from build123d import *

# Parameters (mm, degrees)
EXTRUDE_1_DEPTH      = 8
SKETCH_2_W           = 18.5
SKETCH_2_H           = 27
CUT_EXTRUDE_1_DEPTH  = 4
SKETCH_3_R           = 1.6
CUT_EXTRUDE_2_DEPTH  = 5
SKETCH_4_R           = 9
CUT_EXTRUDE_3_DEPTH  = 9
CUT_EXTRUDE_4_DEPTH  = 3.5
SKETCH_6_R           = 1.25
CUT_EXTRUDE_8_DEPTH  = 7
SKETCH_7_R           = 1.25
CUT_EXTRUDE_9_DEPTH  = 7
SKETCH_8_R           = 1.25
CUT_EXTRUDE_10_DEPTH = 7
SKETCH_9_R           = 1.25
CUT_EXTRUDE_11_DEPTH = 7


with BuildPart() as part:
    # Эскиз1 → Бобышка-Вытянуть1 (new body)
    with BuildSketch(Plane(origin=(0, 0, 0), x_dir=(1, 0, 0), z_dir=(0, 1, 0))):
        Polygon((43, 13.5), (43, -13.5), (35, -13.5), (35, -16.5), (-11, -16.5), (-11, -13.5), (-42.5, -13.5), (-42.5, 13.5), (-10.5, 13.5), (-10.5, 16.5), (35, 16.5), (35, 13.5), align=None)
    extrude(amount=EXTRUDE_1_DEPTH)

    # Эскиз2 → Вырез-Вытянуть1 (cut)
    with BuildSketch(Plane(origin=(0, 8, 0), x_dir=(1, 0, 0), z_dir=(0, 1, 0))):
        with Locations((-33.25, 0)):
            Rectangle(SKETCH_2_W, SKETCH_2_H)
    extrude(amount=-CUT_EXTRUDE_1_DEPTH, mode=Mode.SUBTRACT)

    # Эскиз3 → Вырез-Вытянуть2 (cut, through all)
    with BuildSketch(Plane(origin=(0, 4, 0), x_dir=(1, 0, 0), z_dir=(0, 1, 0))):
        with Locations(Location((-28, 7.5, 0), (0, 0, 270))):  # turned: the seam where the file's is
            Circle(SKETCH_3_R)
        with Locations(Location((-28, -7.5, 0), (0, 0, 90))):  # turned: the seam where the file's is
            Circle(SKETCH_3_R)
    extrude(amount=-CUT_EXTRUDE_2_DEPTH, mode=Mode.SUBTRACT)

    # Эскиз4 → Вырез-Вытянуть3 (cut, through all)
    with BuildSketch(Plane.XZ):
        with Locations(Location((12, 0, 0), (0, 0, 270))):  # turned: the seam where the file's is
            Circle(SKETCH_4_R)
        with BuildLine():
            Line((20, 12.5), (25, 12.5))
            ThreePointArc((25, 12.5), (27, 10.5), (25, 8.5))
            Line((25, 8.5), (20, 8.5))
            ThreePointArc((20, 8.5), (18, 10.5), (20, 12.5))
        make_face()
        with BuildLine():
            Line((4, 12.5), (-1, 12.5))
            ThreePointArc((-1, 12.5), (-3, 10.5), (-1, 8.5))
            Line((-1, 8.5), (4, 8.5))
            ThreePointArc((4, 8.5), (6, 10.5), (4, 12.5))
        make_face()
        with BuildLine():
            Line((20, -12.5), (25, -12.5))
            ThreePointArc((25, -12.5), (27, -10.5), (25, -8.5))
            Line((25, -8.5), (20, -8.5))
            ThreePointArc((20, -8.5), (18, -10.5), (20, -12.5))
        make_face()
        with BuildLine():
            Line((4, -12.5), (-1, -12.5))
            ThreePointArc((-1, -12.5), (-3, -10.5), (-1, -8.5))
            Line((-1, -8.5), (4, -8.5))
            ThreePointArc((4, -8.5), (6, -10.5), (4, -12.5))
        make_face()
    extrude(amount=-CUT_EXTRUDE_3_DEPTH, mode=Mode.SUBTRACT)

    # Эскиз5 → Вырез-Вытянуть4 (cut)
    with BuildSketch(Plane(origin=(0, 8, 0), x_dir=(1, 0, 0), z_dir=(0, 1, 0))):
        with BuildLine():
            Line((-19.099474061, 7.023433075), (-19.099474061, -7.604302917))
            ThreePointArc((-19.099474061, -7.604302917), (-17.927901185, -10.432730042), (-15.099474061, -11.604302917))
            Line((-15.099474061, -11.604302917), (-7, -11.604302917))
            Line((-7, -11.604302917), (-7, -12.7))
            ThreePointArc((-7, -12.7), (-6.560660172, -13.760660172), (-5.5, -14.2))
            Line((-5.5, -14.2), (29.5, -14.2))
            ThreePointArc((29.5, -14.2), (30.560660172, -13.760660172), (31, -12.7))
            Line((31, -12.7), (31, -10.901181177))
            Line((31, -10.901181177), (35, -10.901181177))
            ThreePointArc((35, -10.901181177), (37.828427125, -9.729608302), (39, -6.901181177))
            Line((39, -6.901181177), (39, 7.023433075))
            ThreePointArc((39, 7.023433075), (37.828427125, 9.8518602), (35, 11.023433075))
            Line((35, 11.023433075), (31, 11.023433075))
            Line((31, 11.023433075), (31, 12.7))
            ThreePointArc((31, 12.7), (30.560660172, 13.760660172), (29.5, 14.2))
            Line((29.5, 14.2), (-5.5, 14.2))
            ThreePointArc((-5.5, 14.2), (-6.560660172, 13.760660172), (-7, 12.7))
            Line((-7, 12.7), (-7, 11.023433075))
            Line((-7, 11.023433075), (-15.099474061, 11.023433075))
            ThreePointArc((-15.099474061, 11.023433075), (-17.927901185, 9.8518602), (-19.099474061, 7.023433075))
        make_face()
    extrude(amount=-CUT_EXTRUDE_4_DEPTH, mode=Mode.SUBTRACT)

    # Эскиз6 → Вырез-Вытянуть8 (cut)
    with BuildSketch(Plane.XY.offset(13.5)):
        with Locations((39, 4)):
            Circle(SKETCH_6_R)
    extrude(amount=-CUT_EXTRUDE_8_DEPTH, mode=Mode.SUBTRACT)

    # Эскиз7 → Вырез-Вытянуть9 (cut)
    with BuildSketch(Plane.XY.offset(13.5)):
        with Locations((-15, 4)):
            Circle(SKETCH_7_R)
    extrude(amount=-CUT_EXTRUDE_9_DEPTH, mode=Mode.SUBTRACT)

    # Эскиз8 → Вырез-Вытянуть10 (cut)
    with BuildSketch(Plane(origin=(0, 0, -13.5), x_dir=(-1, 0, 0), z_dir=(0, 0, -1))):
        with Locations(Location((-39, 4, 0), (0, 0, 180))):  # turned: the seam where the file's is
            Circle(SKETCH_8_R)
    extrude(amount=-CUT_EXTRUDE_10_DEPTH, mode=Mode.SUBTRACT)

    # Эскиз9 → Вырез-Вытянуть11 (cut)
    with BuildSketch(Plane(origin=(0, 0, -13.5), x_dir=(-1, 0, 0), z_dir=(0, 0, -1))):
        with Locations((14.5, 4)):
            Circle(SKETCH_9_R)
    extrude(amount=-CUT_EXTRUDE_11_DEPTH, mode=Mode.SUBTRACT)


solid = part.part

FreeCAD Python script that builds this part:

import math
import FreeCAD as App
import Part
import Sketcher
Q = App.Units.Quantity


def add_polygon(sketch, points):
    """Adds a closed chain of lines whose ends are joined by coincident constraints."""
    first, n = sketch.GeometryCount, len(points)
    for a, b in zip(points, points[1:] + points[:1]):
        sketch.addGeometry(Part.LineSegment(App.Vector(*a, 0), App.Vector(*b, 0)), False)
    for i in range(n):
        sketch.addConstraint(Sketcher.Constraint("Coincident", first + i, 2, first + (i + 1) % n, 1))

doc = App.newDocument("Part")
body = doc.addObject("PartDesign::Body", "Body")

# Sketch on XZ plane
sketch1 = doc.addObject("Sketcher::SketchObject", "Sketch")
body.addObject(sketch1)
sketch1.AttachmentSupport = (doc.XZ_Plane, [""])
sketch1.MapMode = "FlatFace"
add_polygon(sketch1, [(43, 13.5), (43, -13.5), (35, -13.5), (35, -16.5), (-10.5, -16.5), (-10.5, -13.5), (-42.5, -13.5), (-42.5, 13.5), (-11, 13.5), (-11, 16.5), (35, 16.5), (35, 13.5)])  # lines 0-11
sketch1.addConstraint([
    Sketcher.Constraint("Vertical", 0),
    Sketcher.Constraint("Horizontal", 1),
    Sketcher.Constraint("Vertical", 2),
    Sketcher.Constraint("Horizontal", 3),
    Sketcher.Constraint("Vertical", 4),
    Sketcher.Constraint("Horizontal", 5),
    Sketcher.Constraint("Vertical", 6),
    Sketcher.Constraint("Horizontal", 7),
    Sketcher.Constraint("Vertical", 8),
    Sketcher.Constraint("Horizontal", 9),
    Sketcher.Constraint("Vertical", 10),
    Sketcher.Constraint("Horizontal", 11),
    Sketcher.Constraint("Symmetric", 2, 2, 9, 2, -1),
    Sketcher.Constraint("Horizontal", 1, 2, 4, 2),
    Sketcher.Constraint("Horizontal", 7, 2, 10, 2),
    Sketcher.Constraint("Equal", 4, 8),
    Sketcher.Constraint("DistanceX", 1, 2, 1, 1, Q("8 mm")),
    Sketcher.Constraint("DistanceX", 5, 2, 5, 1, Q("32 mm")),
    Sketcher.Constraint("DistanceX", 9, 1, 9, 2, Q("46 mm")),
    Sketcher.Constraint("DistanceY", 0, 2, 0, 1, Q("27 mm")),
    Sketcher.Constraint("DistanceY", 2, 2, 2, 1, Q("3 mm")),
    Sketcher.Constraint("DistanceX", 3, 2, 3, 1, Q("45.5 mm")),
    Sketcher.Constraint("DistanceX", -1, 1, 0, 2, Q("43 mm")),
])
pad1 = doc.addObject("PartDesign::Pad", "Pad")
body.addObject(pad1)
pad1.Profile = sketch1
pad1.Length = 8
pad1.Reversed = True

# Sketch on XZ plane
sketch2 = doc.addObject("Sketcher::SketchObject", "Sketch001")
body.addObject(sketch2)
sketch2.AttachmentSupport = (doc.XZ_Plane, [""])
sketch2.MapMode = "FlatFace"
sketch2.AttachmentOffset = App.Placement(App.Vector(0, 0, -8), App.Rotation())
add_polygon(sketch2, [(-42.5, -13.5), (-42.5, 13.5), (-24, 13.5), (-24, -13.5)])  # lines 0-3
sketch2.addConstraint([
    Sketcher.Constraint("Vertical", 0),
    Sketcher.Constraint("Horizontal", 1),
    Sketcher.Constraint("Vertical", 2),
    Sketcher.Constraint("Horizontal", 3),
    Sketcher.Constraint("DistanceY", 0, 1, 0, 2, Q("27 mm")),
    Sketcher.Constraint("DistanceX", 1, 1, 1, 2, Q("18.5 mm")),
    Sketcher.Constraint("DistanceX", 1, 2, -1, 1, Q("24 mm")),
    Sketcher.Constraint("DistanceY", -1, 1, 0, 2, Q("13.5 mm")),
])
pocket1 = doc.addObject("PartDesign::Pocket", "Pocket")
body.addObject(pocket1)
pocket1.Profile = sketch2
pocket1.Length = 4
pocket1.Reversed = True

# Sketch on XZ plane
sketch3 = doc.addObject("Sketcher::SketchObject", "Sketch002")
body.addObject(sketch3)
sketch3.AttachmentSupport = (doc.XZ_Plane, [""])
sketch3.MapMode = "FlatFace"
sketch3.AttachmentOffset = App.Placement(App.Vector(0, 0, -4), App.Rotation())
sketch3.addGeometry([
    Part.Circle(App.Vector(-28, -7.5, 0), App.Vector(0, 0, 1), 1.6),
    Part.Circle(App.Vector(-28, 7.5, 0), App.Vector(0, 0, 1), 1.6),
], False)
sketch3.addConstraint([
    Sketcher.Constraint("Equal", 0, 1),
    Sketcher.Constraint("Symmetric", 0, 3, 1, 3, -1),
    Sketcher.Constraint("Diameter", 0, Q("3.2 mm")),
    Sketcher.Constraint("DistanceX", 0, 3, -1, 1, Q("28 mm")),
    Sketcher.Constraint("DistanceY", 0, 3, 1, 3, Q("15 mm")),
])
pocket2 = doc.addObject("PartDesign::Pocket", "Pocket001")
body.addObject(pocket2)
pocket2.Profile = sketch3
pocket2.Type = "ThroughAll"
pocket2.Reversed = True

# Sketch on XZ plane
sketch4 = doc.addObject("Sketcher::SketchObject", "Sketch003")
body.addObject(sketch4)
sketch4.AttachmentSupport = (doc.XZ_Plane, [""])
sketch4.MapMode = "FlatFace"
sketch4.addGeometry([
    Part.Circle(App.Vector(12, 0, 0), App.Vector(0, 0, 1), 9),  # 0
    Part.LineSegment(App.Vector(25, 12.5, 0), App.Vector(20, 12.5, 0)),  # 1
    Part.ArcOfCircle(Part.Circle(App.Vector(20, 10.5, 0), App.Vector(0, 0, 1), 2), math.radians(90), math.radians(270)),  # 2
    Part.LineSegment(App.Vector(20, 8.5, 0), App.Vector(25, 8.5, 0)),  # 3
    Part.ArcOfCircle(Part.Circle(App.Vector(25, 10.5, 0), App.Vector(0, 0, 1), 2), math.radians(-90), math.radians(90)),  # 4
    Part.LineSegment(App.Vector(4, 12.5, 0), App.Vector(-1, 12.5, 0)),  # 5
    Part.ArcOfCircle(Part.Circle(App.Vector(-1, 10.5, 0), App.Vector(0, 0, 1), 2), math.radians(90), math.radians(270)),  # 6
    Part.LineSegment(App.Vector(-1, 8.5, 0), App.Vector(4, 8.5, 0)),  # 7
    Part.ArcOfCircle(Part.Circle(App.Vector(4, 10.5, 0), App.Vector(0, 0, 1), 2), math.radians(-90), math.radians(90)),  # 8
    Part.LineSegment(App.Vector(20, -12.5, 0), App.Vector(25, -12.5, 0)),  # 9
    Part.ArcOfCircle(Part.Circle(App.Vector(25, -10.5, 0), App.Vector(0, 0, 1), 2), math.radians(-90), math.radians(90)),  # 10
    Part.LineSegment(App.Vector(25, -8.5, 0), App.Vector(20, -8.5, 0)),  # 11
    Part.ArcOfCircle(Part.Circle(App.Vector(20, -10.5, 0), App.Vector(0, 0, 1), 2), math.radians(90), math.radians(270)),  # 12
    Part.LineSegment(App.Vector(-1, -12.5, 0), App.Vector(4, -12.5, 0)),  # 13
    Part.ArcOfCircle(Part.Circle(App.Vector(4, -10.5, 0), App.Vector(0, 0, 1), 2), math.radians(-90), math.radians(90)),  # 14
    Part.LineSegment(App.Vector(4, -8.5, 0), App.Vector(-1, -8.5, 0)),  # 15
    Part.ArcOfCircle(Part.Circle(App.Vector(-1, -10.5, 0), App.Vector(0, 0, 1), 2), math.radians(90), math.radians(270)),  # 16
], False)
sketch4.addConstraint([
    Sketcher.Constraint("Tangent", 1, 2, 2, 1),
    Sketcher.Constraint("Tangent", 2, 2, 3, 1),
    Sketcher.Constraint("Tangent", 3, 2, 4, 1),
    Sketcher.Constraint("Tangent", 4, 2, 1, 1),
    Sketcher.Constraint("Tangent", 5, 2, 6, 1),
    Sketcher.Constraint("Tangent", 6, 2, 7, 1),
    Sketcher.Constraint("Tangent", 7, 2, 8, 1),
    Sketcher.Constraint("Tangent", 8, 2, 5, 1),
    Sketcher.Constraint("Tangent", 9, 2, 10, 1),
    Sketcher.Constraint("Tangent", 10, 2, 11, 1),
    Sketcher.Constraint("Tangent", 11, 2, 12, 1),
    Sketcher.Constraint("Tangent", 12, 2, 9, 1),
    Sketcher.Constraint("Tangent", 13, 2, 14, 1),
    Sketcher.Constraint("Tangent", 14, 2, 15, 1),
    Sketcher.Constraint("Tangent", 15, 2, 16, 1),
    Sketcher.Constraint("Tangent", 16, 2, 13, 1),
    Sketcher.Constraint("Horizontal", 1),
    Sketcher.Constraint("Horizontal", 3),
    Sketcher.Constraint("Horizontal", 5),
    Sketcher.Constraint("Horizontal", 7),
    Sketcher.Constraint("Horizontal", 9),
    Sketcher.Constraint("Horizontal", 11),
    Sketcher.Constraint("Horizontal", 13),
    Sketcher.Constraint("Horizontal", 15),
    Sketcher.Constraint("Equal", 4, 6),
    Sketcher.Constraint("Equal", 8, 10),
    Sketcher.Constraint("Equal", 12, 14),
    Sketcher.Constraint("Symmetric", 4, 3, 10, 3, -1),
    Sketcher.Constraint("Symmetric", 8, 3, 14, 3, -1),
    Sketcher.Constraint("PointOnObject", 0, 3, -1),
    Sketcher.Constraint("Horizontal", 4, 3, 6, 3),
    Sketcher.Constraint("Vertical", 2, 3, 12, 3),
    Sketcher.Constraint("Vertical", 6, 3, 16, 3),
    Sketcher.Constraint("Equal", 3, 5),
    Sketcher.Constraint("Diameter", 0, Q("18 mm")),
    Sketcher.Constraint("Radius", 2, Q("2 mm")),
    Sketcher.Constraint("DistanceX", 1, 2, 1, 1, Q("5 mm")),
    Sketcher.Constraint("DistanceX", -1, 1, 0, 3, Q("12 mm")),
    Sketcher.Constraint("DistanceX", -1, 1, 2, 3, Q("20 mm")),
    Sketcher.Constraint("DistanceX", 6, 3, -1, 1, Q("1 mm")),
    Sketcher.Constraint("DistanceY", 10, 3, 4, 3, Q("21 mm")),
])
pocket3 = doc.addObject("PartDesign::Pocket", "Pocket002")
body.addObject(pocket3)
pocket3.Profile = sketch4
pocket3.Type = "ThroughAll"

# Sketch on XZ plane
sketch5 = doc.addObject("Sketcher::SketchObject", "Sketch004")
body.addObject(sketch5)
sketch5.AttachmentSupport = (doc.XZ_Plane, [""])
sketch5.MapMode = "FlatFace"
sketch5.AttachmentOffset = App.Placement(App.Vector(0, 0, -8), App.Rotation())
sketch5.addGeometry([
    Part.LineSegment(App.Vector(-19.099474, -7.023433, 0), App.Vector(-19.099474, 7.604303, 0)),  # 0
    Part.ArcOfCircle(Part.Circle(App.Vector(-15.099474, 7.604303, 0), App.Vector(0, 0, 1), 4), math.radians(90), math.radians(180)),  # 1
    Part.LineSegment(App.Vector(-15.099474, 11.604303, 0), App.Vector(-7, 11.604303, 0)),  # 2
    Part.LineSegment(App.Vector(-7, 11.604303, 0), App.Vector(-7, 12.7, 0)),  # 3
    Part.ArcOfCircle(Part.Circle(App.Vector(-5.5, 12.7, 0), App.Vector(0, 0, 1), 1.5), math.radians(90), math.radians(180)),  # 4
    Part.LineSegment(App.Vector(-5.5, 14.2, 0), App.Vector(29.5, 14.2, 0)),  # 5
    Part.ArcOfCircle(Part.Circle(App.Vector(29.5, 12.7, 0), App.Vector(0, 0, 1), 1.5), math.radians(0), math.radians(90)),  # 6
    Part.LineSegment(App.Vector(31, 12.7, 0), App.Vector(31, 10.901181, 0)),  # 7
    Part.LineSegment(App.Vector(31, 10.901181, 0), App.Vector(35, 10.901181, 0)),  # 8
    Part.ArcOfCircle(Part.Circle(App.Vector(35, 6.901181, 0), App.Vector(0, 0, 1), 4), math.radians(0), math.radians(90)),  # 9
    Part.LineSegment(App.Vector(39, 6.901181, 0), App.Vector(39, -7.023433, 0)),  # 10
    Part.ArcOfCircle(Part.Circle(App.Vector(35, -7.023433, 0), App.Vector(0, 0, 1), 4), math.radians(-90), math.radians(0)),  # 11
    Part.LineSegment(App.Vector(35, -11.023433, 0), App.Vector(31, -11.023433, 0)),  # 12
    Part.LineSegment(App.Vector(31, -11.023433, 0), App.Vector(31, -12.7, 0)),  # 13
    Part.ArcOfCircle(Part.Circle(App.Vector(29.5, -12.7, 0), App.Vector(0, 0, 1), 1.5), math.radians(-90), math.radians(0)),  # 14
    Part.LineSegment(App.Vector(29.5, -14.2, 0), App.Vector(-5.5, -14.2, 0)),  # 15
    Part.ArcOfCircle(Part.Circle(App.Vector(-5.5, -12.7, 0), App.Vector(0, 0, 1), 1.5), math.radians(180), math.radians(270)),  # 16
    Part.LineSegment(App.Vector(-7, -12.7, 0), App.Vector(-7, -11.023433, 0)),  # 17
    Part.LineSegment(App.Vector(-7, -11.023433, 0), App.Vector(-15.099474, -11.023433, 0)),  # 18
    Part.ArcOfCircle(Part.Circle(App.Vector(-15.099474, -7.023433, 0), App.Vector(0, 0, 1), 4), math.radians(-180), math.radians(-90)),  # 19
], False)
sketch5.addConstraint([
    Sketcher.Constraint("Tangent", 0, 2, 1, 2),
    Sketcher.Constraint("Tangent", 1, 1, 2, 1),
    Sketcher.Constraint("Coincident", 2, 2, 3, 1),
    Sketcher.Constraint("Tangent", 3, 2, 4, 2),
    Sketcher.Constraint("Tangent", 4, 1, 5, 1),
    Sketcher.Constraint("Tangent", 5, 2, 6, 2),
    Sketcher.Constraint("Tangent", 6, 1, 7, 1),
    Sketcher.Constraint("Coincident", 7, 2, 8, 1),
    Sketcher.Constraint("Tangent", 8, 2, 9, 2),
    Sketcher.Constraint("Tangent", 9, 1, 10, 1),
    Sketcher.Constraint("Tangent", 10, 2, 11, 2),
    Sketcher.Constraint("Tangent", 11, 1, 12, 1),
    Sketcher.Constraint("Coincident", 12, 2, 13, 1),
    Sketcher.Constraint("Tangent", 13, 2, 14, 2),
    Sketcher.Constraint("Tangent", 14, 1, 15, 1),
    Sketcher.Constraint("Tangent", 15, 2, 16, 2),
    Sketcher.Constraint("Tangent", 16, 1, 17, 1),
    Sketcher.Constraint("Coincident", 17, 2, 18, 1),
    Sketcher.Constraint("Tangent", 18, 2, 19, 2),
    Sketcher.Constraint("Tangent", 19, 1, 0, 1),
    Sketcher.Constraint("Vertical", 0),
    Sketcher.Constraint("Horizontal", 2),
    Sketcher.Constraint("Vertical", 3),
    Sketcher.Constraint("Horizontal", 5),
    Sketcher.Constraint("Vertical", 7),
    Sketcher.Constraint("Horizontal", 8),
    Sketcher.Constraint("Vertical", 10),
    Sketcher.Constraint("Horizontal", 12),
    Sketcher.Constraint("Vertical", 13),
    Sketcher.Constraint("Horizontal", 15),
    Sketcher.Constraint("Vertical", 17),
    Sketcher.Constraint("Horizontal", 18),
    Sketcher.Constraint("Equal", 4, 6),
    Sketcher.Constraint("Equal", 1, 9),
    Sketcher.Constraint("Equal", 9, 11),
    Sketcher.Constraint("Equal", 6, 14),
    Sketcher.Constraint("Equal", 14, 16),
    Sketcher.Constraint("Equal", 11, 19),
    Sketcher.Constraint("Symmetric", 6, 3, 14, 3, -1),
    Sketcher.Constraint("Horizontal", 11, 3, 19, 3),
    Sketcher.Constraint("Vertical", 4, 3, 16, 3),
    Sketcher.Constraint("Radius", 1, Q("4 mm")),
    Sketcher.Constraint("Radius", 4, Q("1.5 mm")),
    Sketcher.Constraint("DistanceX", 5, 1, 5, 2, Q("35 mm")),
    Sketcher.Constraint("DistanceX", 8, 1, 8, 2, Q("4 mm")),
    Sketcher.Constraint("DistanceX", -1, 1, 9, 3, Q("35 mm")),
    Sketcher.Constraint("DistanceY", -1, 1, 4, 3, Q("12.7 mm")),
    Sketcher.Constraint("DistanceY", 7, 2, 7, 1, Q("1.798819 mm")),
    Sketcher.Constraint("DistanceX", 2, 1, 2, 2, Q("8.099474 mm")),
    Sketcher.Constraint("DistanceY", 0, 1, 0, 2, Q("14.627736 mm")),
    Sketcher.Constraint("DistanceY", 3, 1, 3, 2, Q("1.095697 mm")),
])
pocket4 = doc.addObject("PartDesign::Pocket", "Pocket003")
body.addObject(pocket4)
pocket4.Profile = sketch5
pocket4.Length = 3.5
pocket4.Reversed = True

# Sketch on XY plane
sketch6 = doc.addObject("Sketcher::SketchObject", "Sketch005")
body.addObject(sketch6)
sketch6.AttachmentSupport = (doc.XY_Plane, [""])
sketch6.MapMode = "FlatFace"
sketch6.AttachmentOffset = App.Placement(App.Vector(0, 0, 13.5), App.Rotation())
sketch6.addGeometry(Part.Circle(App.Vector(39, 4, 0), App.Vector(0, 0, 1), 1.25), False)
sketch6.addConstraint([
    Sketcher.Constraint("Diameter", 0, Q("2.5 mm")),
    Sketcher.Constraint("DistanceX", -1, 1, 0, 3, Q("39 mm")),
    Sketcher.Constraint("DistanceY", -1, 1, 0, 3, Q("4 mm")),
])
pocket5 = doc.addObject("PartDesign::Pocket", "Pocket004")
body.addObject(pocket5)
pocket5.Profile = sketch6
pocket5.Length = 7

# Sketch on XY plane
sketch7 = doc.addObject("Sketcher::SketchObject", "Sketch006")
body.addObject(sketch7)
sketch7.AttachmentSupport = (doc.XY_Plane, [""])
sketch7.MapMode = "FlatFace"
sketch7.AttachmentOffset = App.Placement(App.Vector(0, 0, 13.5), App.Rotation())
sketch7.addGeometry(Part.Circle(App.Vector(-15, 4, 0), App.Vector(0, 0, 1), 1.25), False)
sketch7.addConstraint([
    Sketcher.Constraint("Diameter", 0, Q("2.5 mm")),
    Sketcher.Constraint("DistanceX", 0, 3, -1, 1, Q("15 mm")),
    Sketcher.Constraint("DistanceY", -1, 1, 0, 3, Q("4 mm")),
])
pocket6 = doc.addObject("PartDesign::Pocket", "Pocket005")
body.addObject(pocket6)
pocket6.Profile = sketch7
pocket6.Length = 7

# Sketch on XY plane
sketch8 = doc.addObject("Sketcher::SketchObject", "Sketch007")
body.addObject(sketch8)
sketch8.AttachmentSupport = (doc.XY_Plane, [""])
sketch8.MapMode = "FlatFace"
sketch8.AttachmentOffset = App.Placement(App.Vector(0, 0, -13.5), App.Rotation())
sketch8.addGeometry(Part.Circle(App.Vector(39, 4, 0), App.Vector(0, 0, 1), 1.25), False)
sketch8.addConstraint([
    Sketcher.Constraint("Diameter", 0, Q("2.5 mm")),
    Sketcher.Constraint("DistanceX", -1, 1, 0, 3, Q("39 mm")),
    Sketcher.Constraint("DistanceY", -1, 1, 0, 3, Q("4 mm")),
])
pocket7 = doc.addObject("PartDesign::Pocket", "Pocket006")
body.addObject(pocket7)
pocket7.Profile = sketch8
pocket7.Length = 7
pocket7.Reversed = True

# Sketch on XY plane
sketch9 = doc.addObject("Sketcher::SketchObject", "Sketch008")
body.addObject(sketch9)
sketch9.AttachmentSupport = (doc.XY_Plane, [""])
sketch9.MapMode = "FlatFace"
sketch9.AttachmentOffset = App.Placement(App.Vector(0, 0, -13.5), App.Rotation())
sketch9.addGeometry(Part.Circle(App.Vector(-14.5, 4, 0), App.Vector(0, 0, 1), 1.25), False)
sketch9.addConstraint([
    Sketcher.Constraint("Diameter", 0, Q("2.5 mm")),
    Sketcher.Constraint("DistanceY", -1, 1, 0, 3, Q("4 mm")),
    Sketcher.Constraint("DistanceX", 0, 3, -1, 1, Q("14.5 mm")),
])
pocket8 = doc.addObject("PartDesign::Pocket", "Pocket007")
body.addObject(pocket8)
pocket8.Profile = sketch9
pocket8.Length = 7
pocket8.Reversed = True

doc.recompute()
